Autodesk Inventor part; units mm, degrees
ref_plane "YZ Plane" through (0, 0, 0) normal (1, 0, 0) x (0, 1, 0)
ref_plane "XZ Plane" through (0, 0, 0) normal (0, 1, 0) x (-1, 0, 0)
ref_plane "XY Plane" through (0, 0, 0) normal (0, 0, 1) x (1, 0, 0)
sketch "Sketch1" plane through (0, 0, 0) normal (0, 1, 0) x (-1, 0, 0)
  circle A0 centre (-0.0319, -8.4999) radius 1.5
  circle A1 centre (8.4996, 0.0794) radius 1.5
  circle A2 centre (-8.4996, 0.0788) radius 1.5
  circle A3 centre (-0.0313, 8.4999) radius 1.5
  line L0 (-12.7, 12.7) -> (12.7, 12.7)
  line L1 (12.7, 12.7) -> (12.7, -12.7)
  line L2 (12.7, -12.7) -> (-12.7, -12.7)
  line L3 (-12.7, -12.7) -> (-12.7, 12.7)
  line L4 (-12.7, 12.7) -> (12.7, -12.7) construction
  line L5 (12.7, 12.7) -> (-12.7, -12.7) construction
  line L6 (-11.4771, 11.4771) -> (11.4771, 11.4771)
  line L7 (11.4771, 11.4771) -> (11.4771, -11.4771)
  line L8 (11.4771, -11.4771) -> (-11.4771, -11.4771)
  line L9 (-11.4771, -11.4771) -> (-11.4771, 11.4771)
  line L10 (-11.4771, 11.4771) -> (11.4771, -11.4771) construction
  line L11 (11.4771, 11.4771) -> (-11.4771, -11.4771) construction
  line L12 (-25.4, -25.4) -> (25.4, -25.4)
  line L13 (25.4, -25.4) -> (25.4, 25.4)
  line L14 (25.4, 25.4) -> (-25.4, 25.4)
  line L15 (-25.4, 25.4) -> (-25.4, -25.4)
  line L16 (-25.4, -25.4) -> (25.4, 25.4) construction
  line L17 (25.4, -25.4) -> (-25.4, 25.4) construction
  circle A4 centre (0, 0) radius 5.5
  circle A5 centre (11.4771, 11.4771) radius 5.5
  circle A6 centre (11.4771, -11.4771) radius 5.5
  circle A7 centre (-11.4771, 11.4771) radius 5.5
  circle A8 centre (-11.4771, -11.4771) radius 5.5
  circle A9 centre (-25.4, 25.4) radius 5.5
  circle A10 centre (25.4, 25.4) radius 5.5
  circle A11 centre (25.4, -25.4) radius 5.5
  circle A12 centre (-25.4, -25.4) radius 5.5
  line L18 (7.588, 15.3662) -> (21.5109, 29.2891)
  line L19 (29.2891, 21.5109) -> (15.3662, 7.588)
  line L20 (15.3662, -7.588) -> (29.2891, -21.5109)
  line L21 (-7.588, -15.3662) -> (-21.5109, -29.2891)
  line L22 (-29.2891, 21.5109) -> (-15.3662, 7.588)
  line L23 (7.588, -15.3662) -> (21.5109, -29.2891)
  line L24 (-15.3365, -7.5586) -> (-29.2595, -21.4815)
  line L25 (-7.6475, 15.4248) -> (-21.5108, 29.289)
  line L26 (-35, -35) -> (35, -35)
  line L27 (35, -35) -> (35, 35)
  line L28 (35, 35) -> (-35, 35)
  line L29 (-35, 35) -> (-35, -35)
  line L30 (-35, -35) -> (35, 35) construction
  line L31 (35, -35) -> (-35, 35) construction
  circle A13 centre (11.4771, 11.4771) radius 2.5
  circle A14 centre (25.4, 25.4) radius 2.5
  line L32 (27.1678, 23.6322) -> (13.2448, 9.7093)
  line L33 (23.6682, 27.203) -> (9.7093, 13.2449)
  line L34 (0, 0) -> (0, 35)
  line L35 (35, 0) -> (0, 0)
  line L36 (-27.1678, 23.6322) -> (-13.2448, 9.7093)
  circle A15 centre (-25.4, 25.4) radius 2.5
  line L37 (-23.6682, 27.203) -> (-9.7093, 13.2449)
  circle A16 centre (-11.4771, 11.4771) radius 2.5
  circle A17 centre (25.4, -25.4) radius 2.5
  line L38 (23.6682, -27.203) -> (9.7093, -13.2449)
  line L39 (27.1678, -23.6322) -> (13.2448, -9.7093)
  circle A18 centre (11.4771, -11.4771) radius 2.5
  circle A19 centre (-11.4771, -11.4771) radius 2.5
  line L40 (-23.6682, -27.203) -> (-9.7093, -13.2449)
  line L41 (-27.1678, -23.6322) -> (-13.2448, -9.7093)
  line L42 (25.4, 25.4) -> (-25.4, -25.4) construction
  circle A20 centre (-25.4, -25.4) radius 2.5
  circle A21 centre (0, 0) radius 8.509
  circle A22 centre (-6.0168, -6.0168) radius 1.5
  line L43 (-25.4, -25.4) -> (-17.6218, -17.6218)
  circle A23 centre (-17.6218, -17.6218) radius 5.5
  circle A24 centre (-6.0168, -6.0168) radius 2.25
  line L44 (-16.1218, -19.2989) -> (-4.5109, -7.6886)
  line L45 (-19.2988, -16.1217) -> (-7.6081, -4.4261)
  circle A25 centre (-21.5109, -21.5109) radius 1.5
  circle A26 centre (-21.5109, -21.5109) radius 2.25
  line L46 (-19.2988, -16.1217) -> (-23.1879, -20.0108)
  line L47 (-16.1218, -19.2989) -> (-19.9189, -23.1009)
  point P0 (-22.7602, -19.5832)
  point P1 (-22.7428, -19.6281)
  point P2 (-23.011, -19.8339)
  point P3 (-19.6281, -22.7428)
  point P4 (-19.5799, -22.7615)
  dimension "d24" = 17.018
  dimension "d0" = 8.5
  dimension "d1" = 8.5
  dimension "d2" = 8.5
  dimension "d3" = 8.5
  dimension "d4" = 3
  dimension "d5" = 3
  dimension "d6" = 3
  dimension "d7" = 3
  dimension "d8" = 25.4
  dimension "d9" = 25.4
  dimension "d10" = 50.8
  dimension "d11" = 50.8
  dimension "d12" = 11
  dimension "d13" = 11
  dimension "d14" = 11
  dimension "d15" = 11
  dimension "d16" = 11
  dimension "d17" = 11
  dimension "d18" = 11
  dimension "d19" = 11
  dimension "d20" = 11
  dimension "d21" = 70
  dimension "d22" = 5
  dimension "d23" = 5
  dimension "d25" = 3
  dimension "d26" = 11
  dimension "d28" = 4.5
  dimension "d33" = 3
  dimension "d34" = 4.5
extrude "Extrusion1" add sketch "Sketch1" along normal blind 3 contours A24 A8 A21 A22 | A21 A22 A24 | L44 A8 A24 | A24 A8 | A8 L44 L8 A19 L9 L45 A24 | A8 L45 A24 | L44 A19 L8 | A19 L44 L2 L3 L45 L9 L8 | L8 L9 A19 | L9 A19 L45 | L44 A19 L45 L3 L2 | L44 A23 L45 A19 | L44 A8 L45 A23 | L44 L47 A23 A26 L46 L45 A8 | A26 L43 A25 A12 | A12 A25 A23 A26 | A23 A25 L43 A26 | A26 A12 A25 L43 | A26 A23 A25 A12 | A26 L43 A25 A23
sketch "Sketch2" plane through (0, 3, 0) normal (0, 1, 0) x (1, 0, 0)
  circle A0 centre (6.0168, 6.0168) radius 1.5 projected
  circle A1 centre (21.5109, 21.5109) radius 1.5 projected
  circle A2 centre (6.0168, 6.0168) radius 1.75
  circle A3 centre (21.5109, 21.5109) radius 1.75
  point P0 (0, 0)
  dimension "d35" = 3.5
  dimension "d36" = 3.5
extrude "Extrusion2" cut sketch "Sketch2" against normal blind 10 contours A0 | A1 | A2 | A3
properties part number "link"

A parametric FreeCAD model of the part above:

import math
import FreeCAD as App
import Part
import Sketcher

V = App.Vector

doc = App.newDocument("Part")
params = doc.addObject("Spreadsheet::Sheet", "Params")
for row, (alias, value) in enumerate([
    ("sketch1_diameter", "3 mm"),
    ("sketch1_diameter2", "3 mm"),
    ("sketch1_radius", "5.5 mm"),
    ("sketch1_radius2", "5.5 mm"),
    ("sketch1_radius3", "2.25 mm"),
    ("pad1_length", "3 mm"),
    ("sketch2_diameter", "3.5 mm"),
    ("pocket1_length", "10 mm"),
], start=1):
    params.set(f"A{row}", alias)
    params.set(f"B{row}", "=" + value)
    params.setAlias(f"B{row}", alias)

body = doc.addObject("PartDesign::Body", "Body")

# Sketch on XZ plane
sketch1 = body.newObject("Sketcher::SketchObject", "Sketch")
sketch1.AttachmentSupport = (doc.getObject("XZ_Plane"), [""])
sketch1.MapMode = "FlatFace"
sketch1.addGeometry(Part.ArcOfCircle(Part.Circle(V(6.0168, -6.0168, 0), V(0, 0, 1), 2.25), math.radians(44.989196), math.radians(227.98856)), False)
sketch1.addGeometry(Part.LineSegment(V(7.6081, -4.4261, 0), V(19.2988, -16.1217, 0)), False)
sketch1.addGeometry(Part.LineSegment(V(19.2988, -16.1217, 0), V(22.76021, -19.58311, 0)), False)
sketch1.addGeometry(Part.ArcOfCircle(Part.Circle(V(17.6218, -17.6218, 0), V(0, 0, 1), 5.5), math.radians(-21.394256), math.radians(-20.891653)), False)
sketch1.addGeometry(Part.ArcOfCircle(Part.Circle(V(21.5109, -21.5109, 0), V(0, 0, 1), 2.25), math.radians(-146.80332), math.radians(56.80332)), False)
sketch1.addGeometry(Part.ArcOfCircle(Part.Circle(V(17.6218, -17.6218, 0), V(0, 0, 1), 5.5), math.radians(-69.144366), math.radians(-68.605744)), False)
sketch1.addGeometry(Part.LineSegment(V(19.57988, -22.761442, 0), V(16.1218, -19.2989, 0)), False)
sketch1.addGeometry(Part.LineSegment(V(16.1218, -19.2989, 0), V(4.5109, -7.6886, 0)), False)
sketch1.addGeometry(Part.Circle(V(6.0168, -6.0168, 0), V(0, 0, 1), 1.5), False)
sketch1.addGeometry(Part.Circle(V(21.5109, -21.5109, 0), V(0, 0, 1), 1.5), False)
sketch1.addConstraint(Sketcher.Constraint("Coincident", 0, 1, 1, 1))
sketch1.addConstraint(Sketcher.Constraint("Coincident", 1, 2, 2, 1))
sketch1.addConstraint(Sketcher.Constraint("Coincident", 2, 2, 3, 2))
sketch1.addConstraint(Sketcher.Constraint("Coincident", 3, 1, 4, 2))
sketch1.addConstraint(Sketcher.Constraint("Coincident", 4, 1, 5, 2))
sketch1.addConstraint(Sketcher.Constraint("Coincident", 5, 1, 6, 1))
sketch1.addConstraint(Sketcher.Constraint("Coincident", 6, 2, 7, 1))
sketch1.addConstraint(Sketcher.Constraint("Coincident", 7, 2, 0, 2))
sketch1.addConstraint(Sketcher.Constraint("Coincident", 5, 3, 3, 3))
sketch1.addConstraint(Sketcher.Constraint("Coincident", 8, 3, 0, 3))
sketch1.addConstraint(Sketcher.Constraint("Coincident", 9, 3, 4, 3))
sketch1.addConstraint(Sketcher.Constraint("Diameter", 8, 3.0))
sketch1.addConstraint(Sketcher.Constraint("Diameter", 9, 3.0))
sketch1.addConstraint(Sketcher.Constraint("Radius", 3, 5.5))
sketch1.addConstraint(Sketcher.Constraint("Radius", 5, 5.5))
sketch1.addConstraint(Sketcher.Constraint("Radius", 0, 2.25))
sketch1.addConstraint(Sketcher.Constraint("Radius", 4, 2.25))
sketch1.addConstraint(Sketcher.Constraint("DistanceY", 3, 3, 1, 2, 1.5))
sketch1.addConstraint(Sketcher.Constraint("DistanceX", 6, 2, 3, 3, 1.5))
sketch1.addConstraint(Sketcher.Constraint("DistanceX", -1, 1, 4, 3, 21.511))
sketch1.addConstraint(Sketcher.Constraint("DistanceY", 4, 3, -1, 1, 21.511))
sketch1.addConstraint(Sketcher.Constraint("DistanceX", -1, 1, 0, 1, 7.608))
sketch1.addConstraint(Sketcher.Constraint("DistanceY", 0, 1, -1, 1, 4.426))
sketch1.addConstraint(Sketcher.Constraint("DistanceY", 2, 2, -1, 1, 19.583))
sketch1.addConstraint(Sketcher.Constraint("DistanceY", 3, 1, -1, 1, 19.628))
sketch1.addConstraint(Sketcher.Constraint("DistanceX", -1, 1, 4, 1, 19.628))
sketch1.addConstraint(Sketcher.Constraint("DistanceY", 6, 2, -1, 1, 19.299))
sketch1.addConstraint(Sketcher.Constraint("DistanceX", -1, 1, 7, 2, 4.511))
sketch1.addConstraint(Sketcher.Constraint("DistanceX", 0, 3, 3, 3, 11.605))
sketch1.addConstraint(Sketcher.Constraint("DistanceX", 3, 3, 1, 2, 1.677))
sketch1.addConstraint(Sketcher.Constraint("DistanceX", 5, 1, 4, 3, 1.931))
sketch1.setExpression("Constraints[11]", "Params.sketch1_diameter")
sketch1.setExpression("Constraints[12]", "Params.sketch1_diameter2")
sketch1.setExpression("Constraints[13]", "Params.sketch1_radius")
sketch1.setExpression("Constraints[14]", "Params.sketch1_radius2")
sketch1.setExpression("Constraints[15]", "Params.sketch1_radius3")
pad1 = body.newObject("PartDesign::Pad", "Pad")
pad1.Profile = sketch1
pad1.setExpression("Length", "Params.pad1_length")
pad1.Reversed = True

# Sketch on XZ plane
sketch2 = body.newObject("Sketcher::SketchObject", "Sketch001")
sketch2.AttachmentSupport = (doc.getObject("XZ_Plane"), [""])
sketch2.MapMode = "FlatFace"
sketch2.AttachmentOffset = App.Placement(V(0, 0, -3), App.Rotation())
sketch2.addGeometry(Part.Circle(V(6, -6, 0), V(0, 0, 1), 1.8), False)
sketch2.addGeometry(Part.Circle(V(21.5, -21.5, 0), V(0, 0, 1), 1.8), False)
sketch2.addConstraint(Sketcher.Constraint("Equal", 0, 1))
sketch2.addConstraint(Sketcher.Constraint("Diameter", 0, 3.5))
sketch2.addConstraint(Sketcher.Constraint("DistanceX", -1, 1, 1, 3, 21.511))
sketch2.addConstraint(Sketcher.Constraint("DistanceY", 1, 3, -1, 1, 21.511))
sketch2.addConstraint(Sketcher.Constraint("DistanceX", 0, 3, 1, 3, 15.494))
sketch2.addConstraint(Sketcher.Constraint("DistanceY", 1, 3, 0, 3, 15.494))
sketch2.setExpression("Constraints[1]", "Params.sketch2_diameter")
pocket1 = body.newObject("PartDesign::Pocket", "Pocket")
pocket1.Profile = sketch2
pocket1.setExpression("Length", "Params.pocket1_length")
pocket1.Reversed = True

doc.recompute()
